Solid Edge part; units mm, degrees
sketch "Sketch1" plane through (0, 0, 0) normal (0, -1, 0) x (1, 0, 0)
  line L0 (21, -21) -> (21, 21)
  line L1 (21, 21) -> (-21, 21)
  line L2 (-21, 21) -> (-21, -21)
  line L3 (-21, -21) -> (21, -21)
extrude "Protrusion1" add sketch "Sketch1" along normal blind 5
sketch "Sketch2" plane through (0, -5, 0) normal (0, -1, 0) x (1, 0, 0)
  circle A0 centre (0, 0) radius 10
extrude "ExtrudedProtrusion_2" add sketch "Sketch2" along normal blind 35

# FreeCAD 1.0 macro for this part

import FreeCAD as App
import Part
import Sketcher
Q = App.Units.Quantity


def add_polygon(sketch, points):
    """Adds a closed chain of lines whose ends are joined by coincident constraints."""
    first, n = sketch.GeometryCount, len(points)
    for a, b in zip(points, points[1:] + points[:1]):
        sketch.addGeometry(Part.LineSegment(App.Vector(*a, 0), App.Vector(*b, 0)), False)
    for i in range(n):
        sketch.addConstraint(Sketcher.Constraint("Coincident", first + i, 2, first + (i + 1) % n, 1))

doc = App.newDocument("Part")
body = doc.addObject("PartDesign::Body", "Body")

# Sketch on XZ plane
sketch1 = body.newObject("Sketcher::SketchObject", "Sketch")
sketch1.AttachmentSupport = (doc.getObject("XZ_Plane"), [""])
sketch1.MapMode = "FlatFace"
add_polygon(sketch1, [(-21, -21), (21, -21), (21, 21), (-21, 21)])  # lines 0-3
sketch1.addConstraint([
    Sketcher.Constraint("Horizontal", 0),
    Sketcher.Constraint("Vertical", 1),
    Sketcher.Constraint("Horizontal", 2),
    Sketcher.Constraint("Vertical", 3),
    Sketcher.Constraint("Symmetric", 0, 2, 2, 2, -1, 1),
    Sketcher.Constraint("Equal", 2, 1),
    Sketcher.Constraint("DistanceX", 0, 1, 0, 2, Q("42 mm")),
])
pad1 = body.newObject("PartDesign::Pad", "Pad")
pad1.Profile = sketch1
pad1.Length = 5

# Sketch on XZ plane
sketch2 = body.newObject("Sketcher::SketchObject", "Sketch001")
sketch2.AttachmentSupport = (doc.getObject("XZ_Plane"), [""])
sketch2.MapMode = "FlatFace"
sketch2.AttachmentOffset = App.Placement(App.Vector(0, 0, 5), App.Rotation())
sketch2.addGeometry(Part.Circle(App.Vector(0, 0, 0), App.Vector(0, 0, 1), 10), False)
sketch2.addConstraint([
    Sketcher.Constraint("Coincident", 0, 3, -1, 1),
    Sketcher.Constraint("Diameter", 0, Q("20 mm")),
])
pad2 = body.newObject("PartDesign::Pad", "Pad001")
pad2.Profile = sketch2
pad2.Length = 35

doc.recompute()
